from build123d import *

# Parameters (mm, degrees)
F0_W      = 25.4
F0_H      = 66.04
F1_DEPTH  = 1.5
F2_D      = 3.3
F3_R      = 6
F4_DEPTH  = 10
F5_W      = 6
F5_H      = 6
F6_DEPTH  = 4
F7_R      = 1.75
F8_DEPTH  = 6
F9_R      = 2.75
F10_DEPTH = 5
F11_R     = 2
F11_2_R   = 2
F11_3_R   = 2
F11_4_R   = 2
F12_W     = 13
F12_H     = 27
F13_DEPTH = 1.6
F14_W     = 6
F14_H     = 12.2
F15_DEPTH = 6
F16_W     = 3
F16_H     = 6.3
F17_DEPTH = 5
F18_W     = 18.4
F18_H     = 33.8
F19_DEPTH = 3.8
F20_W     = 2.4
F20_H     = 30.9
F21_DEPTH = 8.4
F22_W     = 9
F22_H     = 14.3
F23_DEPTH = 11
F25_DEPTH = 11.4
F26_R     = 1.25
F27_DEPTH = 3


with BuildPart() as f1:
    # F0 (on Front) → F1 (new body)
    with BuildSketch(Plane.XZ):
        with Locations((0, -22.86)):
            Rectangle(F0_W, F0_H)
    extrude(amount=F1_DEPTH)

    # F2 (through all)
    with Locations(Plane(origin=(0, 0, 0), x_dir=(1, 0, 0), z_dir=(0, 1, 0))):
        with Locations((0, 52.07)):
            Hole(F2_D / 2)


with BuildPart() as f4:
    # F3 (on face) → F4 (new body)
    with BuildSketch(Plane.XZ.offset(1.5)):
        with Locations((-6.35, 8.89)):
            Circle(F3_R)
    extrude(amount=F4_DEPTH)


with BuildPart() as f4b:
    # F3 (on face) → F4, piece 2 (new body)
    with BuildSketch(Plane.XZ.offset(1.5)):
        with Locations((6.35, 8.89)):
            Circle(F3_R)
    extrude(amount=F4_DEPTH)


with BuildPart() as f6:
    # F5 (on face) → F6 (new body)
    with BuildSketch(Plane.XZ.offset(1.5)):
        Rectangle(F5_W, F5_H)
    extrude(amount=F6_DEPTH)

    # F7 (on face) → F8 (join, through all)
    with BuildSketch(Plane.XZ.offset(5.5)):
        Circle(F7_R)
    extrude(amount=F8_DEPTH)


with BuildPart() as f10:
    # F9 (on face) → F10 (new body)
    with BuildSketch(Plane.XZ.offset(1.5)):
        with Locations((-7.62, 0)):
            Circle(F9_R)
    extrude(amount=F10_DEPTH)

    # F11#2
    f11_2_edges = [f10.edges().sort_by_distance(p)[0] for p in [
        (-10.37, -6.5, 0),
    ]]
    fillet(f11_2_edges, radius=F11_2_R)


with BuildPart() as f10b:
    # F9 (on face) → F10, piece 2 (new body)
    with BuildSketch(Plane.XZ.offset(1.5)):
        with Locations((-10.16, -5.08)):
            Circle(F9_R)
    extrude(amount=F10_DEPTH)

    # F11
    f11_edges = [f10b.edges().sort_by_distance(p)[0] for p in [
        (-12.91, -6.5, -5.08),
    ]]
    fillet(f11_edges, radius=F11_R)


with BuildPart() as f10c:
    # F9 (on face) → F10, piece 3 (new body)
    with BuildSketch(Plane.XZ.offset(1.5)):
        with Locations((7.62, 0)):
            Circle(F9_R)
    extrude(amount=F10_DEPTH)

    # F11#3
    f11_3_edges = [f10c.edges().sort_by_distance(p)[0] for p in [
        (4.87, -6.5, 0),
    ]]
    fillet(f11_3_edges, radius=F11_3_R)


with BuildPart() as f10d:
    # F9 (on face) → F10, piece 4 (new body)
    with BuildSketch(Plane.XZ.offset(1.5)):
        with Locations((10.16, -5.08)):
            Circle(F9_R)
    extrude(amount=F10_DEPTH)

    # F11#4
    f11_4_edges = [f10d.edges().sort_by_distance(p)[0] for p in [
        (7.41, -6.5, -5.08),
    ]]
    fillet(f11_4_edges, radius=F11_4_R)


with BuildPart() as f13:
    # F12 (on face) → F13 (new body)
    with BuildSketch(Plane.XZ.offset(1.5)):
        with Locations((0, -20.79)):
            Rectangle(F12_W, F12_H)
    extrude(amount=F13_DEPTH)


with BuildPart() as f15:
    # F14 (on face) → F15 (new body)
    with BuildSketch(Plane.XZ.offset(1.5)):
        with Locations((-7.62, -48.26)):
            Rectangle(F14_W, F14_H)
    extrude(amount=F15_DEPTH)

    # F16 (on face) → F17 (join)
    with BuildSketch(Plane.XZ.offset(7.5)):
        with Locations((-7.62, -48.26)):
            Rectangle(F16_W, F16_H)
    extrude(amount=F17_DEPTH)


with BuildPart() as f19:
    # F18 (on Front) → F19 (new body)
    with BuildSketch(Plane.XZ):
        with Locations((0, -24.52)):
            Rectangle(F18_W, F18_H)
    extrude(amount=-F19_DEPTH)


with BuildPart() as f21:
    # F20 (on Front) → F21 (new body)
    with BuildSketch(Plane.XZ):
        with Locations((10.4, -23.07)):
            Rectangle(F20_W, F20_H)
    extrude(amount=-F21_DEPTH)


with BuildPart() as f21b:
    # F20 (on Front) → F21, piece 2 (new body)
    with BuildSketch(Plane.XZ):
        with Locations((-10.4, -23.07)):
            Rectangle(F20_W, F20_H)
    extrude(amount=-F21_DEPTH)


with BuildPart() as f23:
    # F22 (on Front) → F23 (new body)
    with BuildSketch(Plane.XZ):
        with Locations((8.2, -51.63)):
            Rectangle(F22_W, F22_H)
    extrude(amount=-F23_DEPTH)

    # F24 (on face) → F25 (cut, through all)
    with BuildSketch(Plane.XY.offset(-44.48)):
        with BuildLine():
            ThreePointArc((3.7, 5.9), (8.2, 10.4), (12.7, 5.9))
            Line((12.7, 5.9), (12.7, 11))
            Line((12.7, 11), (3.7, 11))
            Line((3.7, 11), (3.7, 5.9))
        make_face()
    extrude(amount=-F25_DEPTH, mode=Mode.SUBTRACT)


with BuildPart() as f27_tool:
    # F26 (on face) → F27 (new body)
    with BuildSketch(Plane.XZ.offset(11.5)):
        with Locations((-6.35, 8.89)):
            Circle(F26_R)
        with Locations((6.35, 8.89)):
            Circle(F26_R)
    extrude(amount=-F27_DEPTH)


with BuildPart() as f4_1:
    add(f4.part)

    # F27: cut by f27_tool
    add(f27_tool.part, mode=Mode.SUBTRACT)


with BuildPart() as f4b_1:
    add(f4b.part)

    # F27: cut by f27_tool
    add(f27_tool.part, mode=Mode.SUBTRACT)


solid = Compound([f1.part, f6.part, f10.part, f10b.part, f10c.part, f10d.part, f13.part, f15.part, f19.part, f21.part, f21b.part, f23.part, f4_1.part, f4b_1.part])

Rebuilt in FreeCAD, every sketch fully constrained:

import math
import FreeCAD as App
import Part
import Sketcher

V = App.Vector
Q = App.Units.Quantity


def edges_at(feature, points):
    """Names of the edges that pass closest to the given points."""
    edges = feature.Shape.Edges
    near = lambda p: min(range(len(edges)), key=lambda i: edges[i].distToShape(Part.Vertex(*p))[0])
    return sorted({f"Edge{near(p) + 1}" for p in points})


def add_polygon(sketch, points):
    """Adds a closed chain of lines whose ends are joined by coincident constraints."""
    first, n = sketch.GeometryCount, len(points)
    for a, b in zip(points, points[1:] + points[:1]):
        sketch.addGeometry(Part.LineSegment(App.Vector(*a, 0), App.Vector(*b, 0)), False)
    for i in range(n):
        sketch.addConstraint(Sketcher.Constraint("Coincident", first + i, 2, first + (i + 1) % n, 1))

doc = App.newDocument("Part")
body = doc.addObject("PartDesign::Body", "Body")

# Sketch on XZ plane
sketch1 = body.newObject("Sketcher::SketchObject", "Sketch")
sketch1.AttachmentSupport = (doc.getObject("XZ_Plane"), [""])
sketch1.MapMode = "FlatFace"
add_polygon(sketch1, [(-13, 10), (-13, -56), (13, -56), (13, 10)])  # lines 0-3
sketch1.addConstraint([
    Sketcher.Constraint("Vertical", 0),
    Sketcher.Constraint("Horizontal", 1),
    Sketcher.Constraint("Vertical", 2),
    Sketcher.Constraint("Horizontal", 3),
    Sketcher.Constraint("DistanceX", 1, 1, 1, 2, Q("25.4 mm")),
    Sketcher.Constraint("DistanceY", 0, 2, 0, 1, Q("66.04 mm")),
    Sketcher.Constraint("DistanceX", 0, 2, -1, 1, Q("12.7 mm")),
    Sketcher.Constraint("DistanceY", 0, 2, -1, 1, Q("55.88 mm")),
])
pad1 = body.newObject("PartDesign::Pad", "Pad")
pad1.Profile = sketch1
pad1.Length = 1.5

# Sketch on XZ plane
sketch2 = body.newObject("Sketcher::SketchObject", "Sketch001")
sketch2.AttachmentSupport = (doc.getObject("XZ_Plane"), [""])
sketch2.MapMode = "FlatFace"
sketch2.addGeometry(Part.Circle(V(0, -52.1, 0), V(0, 0, 1), 1.6), False)
sketch2.addConstraint([
    Sketcher.Constraint("PointOnObject", 0, 3, -2),
    Sketcher.Constraint("Diameter", 0, Q("3.3 mm")),
    Sketcher.Constraint("DistanceY", 0, 3, -1, 1, Q("52.07 mm")),
])
doc.recompute()
hole = body.newObject("PartDesign::Hole", "Hole")
hole.Profile = sketch2
hole.ThreadType = "None"
hole.Diameter = 3.3
hole.DepthType = "ThroughAll"
hole.Reversed = True
body2 = doc.addObject("PartDesign::Body", "Body001")

# Sketch on XZ plane
sketch3 = body2.newObject("Sketcher::SketchObject", "Sketch002")
sketch3.AttachmentSupport = (doc.getObject("XZ_Plane001"), [""])
sketch3.MapMode = "FlatFace"
sketch3.AttachmentOffset = App.Placement(V(0, 0, 1.5), App.Rotation())
sketch3.addGeometry(Part.Circle(V(-6, 9, 0), V(0, 0, 1), 6), False)
sketch3.addConstraint([
    Sketcher.Constraint("Diameter", 0, Q("12 mm")),
    Sketcher.Constraint("DistanceX", 0, 3, -1, 1, Q("6.35 mm")),
    Sketcher.Constraint("DistanceY", -1, 1, 0, 3, Q("8.89 mm")),
])
pad2 = body2.newObject("PartDesign::Pad", "Pad001")
pad2.Profile = sketch3
pad2.Length = 10
body3 = doc.addObject("PartDesign::Body", "Body002")

# Sketch on XZ plane
sketch4 = body3.newObject("Sketcher::SketchObject", "Sketch003")
sketch4.AttachmentSupport = (doc.getObject("XZ_Plane002"), [""])
sketch4.MapMode = "FlatFace"
sketch4.AttachmentOffset = App.Placement(V(0, 0, 1.5), App.Rotation())
sketch4.addGeometry(Part.Circle(V(6, 9, 0), V(0, 0, 1), 6), False)
sketch4.addConstraint([
    Sketcher.Constraint("Diameter", 0, Q("12 mm")),
    Sketcher.Constraint("DistanceX", -1, 1, 0, 3, Q("6.35 mm")),
    Sketcher.Constraint("DistanceY", -1, 1, 0, 3, Q("8.89 mm")),
])
pad3 = body3.newObject("PartDesign::Pad", "Pad002")
pad3.Profile = sketch4
pad3.Length = 10
body4 = doc.addObject("PartDesign::Body", "Body003")

# Sketch on XZ plane
sketch5 = body4.newObject("Sketcher::SketchObject", "Sketch004")
sketch5.AttachmentSupport = (doc.getObject("XZ_Plane003"), [""])
sketch5.MapMode = "FlatFace"
sketch5.AttachmentOffset = App.Placement(V(0, 0, 1.5), App.Rotation())
add_polygon(sketch5, [(-3, 3), (-3, -3), (3, -3), (3, 3)])  # lines 0-3
sketch5.addConstraint([
    Sketcher.Constraint("Vertical", 0),
    Sketcher.Constraint("Horizontal", 1),
    Sketcher.Constraint("Vertical", 2),
    Sketcher.Constraint("Horizontal", 3),
    Sketcher.Constraint("Symmetric", 0, 2, 2, 2, -1, 1),
    Sketcher.Constraint("Equal", 3, 0),
    Sketcher.Constraint("DistanceX", 1, 1, 1, 2, Q("6 mm")),
])
pad4 = body4.newObject("PartDesign::Pad", "Pad003")
pad4.Profile = sketch5
pad4.Length = 4

# Sketch on XZ plane
sketch6 = body4.newObject("Sketcher::SketchObject", "Sketch005")
sketch6.AttachmentSupport = (doc.getObject("XZ_Plane003"), [""])
sketch6.MapMode = "FlatFace"
sketch6.AttachmentOffset = App.Placement(V(0, 0, 5.5), App.Rotation())
sketch6.addGeometry(Part.Circle(V(0, 0, 0), V(0, 0, 1), 1.8), False)
sketch6.addConstraint([
    Sketcher.Constraint("Coincident", 0, 3, -1, 1),
    Sketcher.Constraint("Diameter", 0, Q("3.5 mm")),
])
pad5 = body4.newObject("PartDesign::Pad", "Pad004")
pad5.Profile = sketch6
pad5.Length = 6
body5 = doc.addObject("PartDesign::Body", "Body004")

# Sketch on XZ plane
sketch7 = body5.newObject("Sketcher::SketchObject", "Sketch006")
sketch7.AttachmentSupport = (doc.getObject("XZ_Plane004"), [""])
sketch7.MapMode = "FlatFace"
sketch7.AttachmentOffset = App.Placement(V(0, 0, 1.5), App.Rotation())
sketch7.addGeometry(Part.Circle(V(-7.6, 0, 0), V(0, 0, 1), 2.8), False)
sketch7.addConstraint([
    Sketcher.Constraint("PointOnObject", 0, 3, -1),
    Sketcher.Constraint("Diameter", 0, Q("5.5 mm")),
    Sketcher.Constraint("DistanceX", 0, 3, -1, 1, Q("7.62 mm")),
])
pad6 = body5.newObject("PartDesign::Pad", "Pad005")
pad6.Profile = sketch7
pad6.Length = 5
doc.recompute()

fillet = body5.newObject("PartDesign::Fillet", "Fillet")
fillet.Base = (pad6, edges_at(pad6, [(-10.37, -6.5, 0)]))
fillet.Radius = 2
body6 = doc.addObject("PartDesign::Body", "Body005")

# Sketch on XZ plane
sketch8 = body6.newObject("Sketcher::SketchObject", "Sketch007")
sketch8.AttachmentSupport = (doc.getObject("XZ_Plane005"), [""])
sketch8.MapMode = "FlatFace"
sketch8.AttachmentOffset = App.Placement(V(0, 0, 1.5), App.Rotation())
sketch8.addGeometry(Part.Circle(V(-10.2, -5.1, 0), V(0, 0, 1), 2.8), False)
sketch8.addConstraint([
    Sketcher.Constraint("Diameter", 0, Q("5.5 mm")),
    Sketcher.Constraint("DistanceX", 0, 3, -1, 1, Q("10.16 mm")),
    Sketcher.Constraint("DistanceY", 0, 3, -1, 1, Q("5.08 mm")),
])
pad7 = body6.newObject("PartDesign::Pad", "Pad006")
pad7.Profile = sketch8
pad7.Length = 5
doc.recompute()

fillet2 = body6.newObject("PartDesign::Fillet", "Fillet001")
fillet2.Base = (pad7, edges_at(pad7, [(-12.91, -6.5, -5.08)]))
fillet2.Radius = 2
body7 = doc.addObject("PartDesign::Body", "Body006")

# Sketch on XZ plane
sketch9 = body7.newObject("Sketcher::SketchObject", "Sketch008")
sketch9.AttachmentSupport = (doc.getObject("XZ_Plane006"), [""])
sketch9.MapMode = "FlatFace"
sketch9.AttachmentOffset = App.Placement(V(0, 0, 1.5), App.Rotation())
sketch9.addGeometry(Part.Circle(V(7.6, 0, 0), V(0, 0, 1), 2.8), False)
sketch9.addConstraint([
    Sketcher.Constraint("PointOnObject", 0, 3, -1),
    Sketcher.Constraint("Diameter", 0, Q("5.5 mm")),
    Sketcher.Constraint("DistanceX", -1, 1, 0, 3, Q("7.62 mm")),
])
pad8 = body7.newObject("PartDesign::Pad", "Pad007")
pad8.Profile = sketch9
pad8.Length = 5
doc.recompute()

fillet3 = body7.newObject("PartDesign::Fillet", "Fillet002")
fillet3.Base = (pad8, edges_at(pad8, [(4.87, -6.5, 0)]))
fillet3.Radius = 2
body8 = doc.addObject("PartDesign::Body", "Body007")

# Sketch on XZ plane
sketch10 = body8.newObject("Sketcher::SketchObject", "Sketch009")
sketch10.AttachmentSupport = (doc.getObject("XZ_Plane007"), [""])
sketch10.MapMode = "FlatFace"
sketch10.AttachmentOffset = App.Placement(V(0, 0, 1.5), App.Rotation())
sketch10.addGeometry(Part.Circle(V(10.2, -5.1, 0), V(0, 0, 1), 2.8), False)
sketch10.addConstraint([
    Sketcher.Constraint("Diameter", 0, Q("5.5 mm")),
    Sketcher.Constraint("DistanceX", -1, 1, 0, 3, Q("10.16 mm")),
    Sketcher.Constraint("DistanceY", 0, 3, -1, 1, Q("5.08 mm")),
])
pad9 = body8.newObject("PartDesign::Pad", "Pad008")
pad9.Profile = sketch10
pad9.Length = 5
doc.recompute()

fillet4 = body8.newObject("PartDesign::Fillet", "Fillet003")
fillet4.Base = (pad9, edges_at(pad9, [(7.41, -6.5, -5.08)]))
fillet4.Radius = 2
body9 = doc.addObject("PartDesign::Body", "Body008")

# Sketch on XZ plane
sketch11 = body9.newObject("Sketcher::SketchObject", "Sketch010")
sketch11.AttachmentSupport = (doc.getObject("XZ_Plane008"), [""])
sketch11.MapMode = "FlatFace"
sketch11.AttachmentOffset = App.Placement(V(0, 0, 1.5), App.Rotation())
add_polygon(sketch11, [(-6, -7), (-6, -34), (6, -34), (6, -7)])  # lines 0-3
sketch11.addConstraint([
    Sketcher.Constraint("Vertical", 0),
    Sketcher.Constraint("Horizontal", 1),
    Sketcher.Constraint("Vertical", 2),
    Sketcher.Constraint("Horizontal", 3),
    Sketcher.Constraint("DistanceX", 1, 1, 1, 2, Q("13 mm")),
    Sketcher.Constraint("DistanceY", 0, 2, 0, 1, Q("27 mm")),
    Sketcher.Constraint("DistanceX", 0, 2, -1, 1, Q("6.5 mm")),
    Sketcher.Constraint("DistanceY", 0, 2, -1, 1, Q("34.29 mm")),
])
pad10 = body9.newObject("PartDesign::Pad", "Pad009")
pad10.Profile = sketch11
pad10.Length = 1.6
body10 = doc.addObject("PartDesign::Body", "Body009")

# Sketch on XZ plane
sketch12 = body10.newObject("Sketcher::SketchObject", "Sketch011")
sketch12.AttachmentSupport = (doc.getObject("XZ_Plane009"), [""])
sketch12.MapMode = "FlatFace"
sketch12.AttachmentOffset = App.Placement(V(0, 0, 1.5), App.Rotation())
add_polygon(sketch12, [(-11, -42), (-11, -54), (-5, -54), (-5, -42)])  # lines 0-3
sketch12.addConstraint([
    Sketcher.Constraint("Vertical", 0),
    Sketcher.Constraint("Horizontal", 1),
    Sketcher.Constraint("Vertical", 2),
    Sketcher.Constraint("Horizontal", 3),
    Sketcher.Constraint("DistanceX", 1, 1, 1, 2, Q("6 mm")),
    Sketcher.Constraint("DistanceY", 0, 2, 0, 1, Q("12.2 mm")),
    Sketcher.Constraint("DistanceX", 0, 2, -1, 1, Q("10.62 mm")),
    Sketcher.Constraint("DistanceY", 0, 2, -1, 1, Q("54.36 mm")),
])
pad11 = body10.newObject("PartDesign::Pad", "Pad010")
pad11.Profile = sketch12
pad11.Length = 6

# Sketch on XZ plane
sketch13 = body10.newObject("Sketcher::SketchObject", "Sketch012")
sketch13.AttachmentSupport = (doc.getObject("XZ_Plane009"), [""])
sketch13.MapMode = "FlatFace"
sketch13.AttachmentOffset = App.Placement(V(0, 0, 7.5), App.Rotation())
add_polygon(sketch13, [(-9.1, -45.1), (-9.1, -51.4), (-6.1, -51.4), (-6.1, -45.1)])  # lines 0-3
sketch13.addConstraint([
    Sketcher.Constraint("Vertical", 0),
    Sketcher.Constraint("Horizontal", 1),
    Sketcher.Constraint("Vertical", 2),
    Sketcher.Constraint("Horizontal", 3),
    Sketcher.Constraint("DistanceX", 1, 1, 1, 2, Q("3 mm")),
    Sketcher.Constraint("DistanceY", 0, 2, 0, 1, Q("6.3 mm")),
    Sketcher.Constraint("DistanceX", 0, 2, -1, 1, Q("9.12 mm")),
    Sketcher.Constraint("DistanceY", 0, 2, -1, 1, Q("51.41 mm")),
])
pad12 = body10.newObject("PartDesign::Pad", "Pad011")
pad12.Profile = sketch13
pad12.Length = 5
body11 = doc.addObject("PartDesign::Body", "Body010")

# Sketch on XZ plane
sketch14 = body11.newObject("Sketcher::SketchObject", "Sketch013")
sketch14.AttachmentSupport = (doc.getObject("XZ_Plane010"), [""])
sketch14.MapMode = "FlatFace"
add_polygon(sketch14, [(-9, -8), (-9, -41), (9, -41), (9, -8)])  # lines 0-3
sketch14.addConstraint([
    Sketcher.Constraint("Vertical", 0),
    Sketcher.Constraint("Horizontal", 1),
    Sketcher.Constraint("Vertical", 2),
    Sketcher.Constraint("Horizontal", 3),
    Sketcher.Constraint("DistanceX", 1, 1, 1, 2, Q("18.4 mm")),
    Sketcher.Constraint("DistanceY", 0, 2, 0, 1, Q("33.8 mm")),
    Sketcher.Constraint("DistanceX", 0, 2, -1, 1, Q("9.2 mm")),
    Sketcher.Constraint("DistanceY", 0, 2, -1, 1, Q("41.42 mm")),
])
pad13 = body11.newObject("PartDesign::Pad", "Pad012")
pad13.Profile = sketch14
pad13.Length = 3.8
pad13.Reversed = True
body12 = doc.addObject("PartDesign::Body", "Body011")

# Sketch on XZ plane
sketch15 = body12.newObject("Sketcher::SketchObject", "Sketch014")
sketch15.AttachmentSupport = (doc.getObject("XZ_Plane011"), [""])
sketch15.MapMode = "FlatFace"
add_polygon(sketch15, [(9.2, -7.6), (9.2, -38.5), (11.6, -38.5), (11.6, -7.6)])  # lines 0-3
sketch15.addConstraint([
    Sketcher.Constraint("Vertical", 0),
    Sketcher.Constraint("Horizontal", 1),
    Sketcher.Constraint("Vertical", 2),
    Sketcher.Constraint("Horizontal", 3),
    Sketcher.Constraint("DistanceX", 1, 1, 1, 2, Q("2.4 mm")),
    Sketcher.Constraint("DistanceY", 0, 2, 0, 1, Q("30.9 mm")),
    Sketcher.Constraint("DistanceX", -1, 1, 0, 2, Q("9.2 mm")),
    Sketcher.Constraint("DistanceY", 0, 2, -1, 1, Q("38.52 mm")),
])
pad14 = body12.newObject("PartDesign::Pad", "Pad013")
pad14.Profile = sketch15
pad14.Length = 8.4
pad14.Reversed = True
body13 = doc.addObject("PartDesign::Body", "Body012")

# Sketch on XZ plane
sketch16 = body13.newObject("Sketcher::SketchObject", "Sketch015")
sketch16.AttachmentSupport = (doc.getObject("XZ_Plane012"), [""])
sketch16.MapMode = "FlatFace"
add_polygon(sketch16, [(-11.6, -7.6), (-11.6, -38.5), (-9.2, -38.5), (-9.2, -7.6)])  # lines 0-3
sketch16.addConstraint([
    Sketcher.Constraint("Vertical", 0),
    Sketcher.Constraint("Horizontal", 1),
    Sketcher.Constraint("Vertical", 2),
    Sketcher.Constraint("Horizontal", 3),
    Sketcher.Constraint("DistanceX", 1, 1, 1, 2, Q("2.4 mm")),
    Sketcher.Constraint("DistanceY", 0, 2, 0, 1, Q("30.9 mm")),
    Sketcher.Constraint("DistanceX", 0, 2, -1, 1, Q("11.6 mm")),
    Sketcher.Constraint("DistanceY", 0, 2, -1, 1, Q("38.52 mm")),
])
pad15 = body13.newObject("PartDesign::Pad", "Pad014")
pad15.Profile = sketch16
pad15.Length = 8.4
pad15.Reversed = True
body14 = doc.addObject("PartDesign::Body", "Body013")

# Sketch on XZ plane
sketch17 = body14.newObject("Sketcher::SketchObject", "Sketch016")
sketch17.AttachmentSupport = (doc.getObject("XZ_Plane013"), [""])
sketch17.MapMode = "FlatFace"
add_polygon(sketch17, [(4, -44), (4, -59), (13, -59), (13, -44)])  # lines 0-3
sketch17.addConstraint([
    Sketcher.Constraint("Vertical", 0),
    Sketcher.Constraint("Horizontal", 1),
    Sketcher.Constraint("Vertical", 2),
    Sketcher.Constraint("Horizontal", 3),
    Sketcher.Constraint("DistanceX", 1, 1, 1, 2, Q("9 mm")),
    Sketcher.Constraint("DistanceY", 0, 2, 0, 1, Q("14.3 mm")),
    Sketcher.Constraint("DistanceX", -1, 1, 0, 2, Q("3.7 mm")),
    Sketcher.Constraint("DistanceY", 0, 2, -1, 1, Q("58.78 mm")),
])
pad16 = body14.newObject("PartDesign::Pad", "Pad015")
pad16.Profile = sketch17
pad16.Length = 11
pad16.Reversed = True

# Sketch on XY plane
sketch18 = body14.newObject("Sketcher::SketchObject", "Sketch017")
sketch18.AttachmentSupport = (doc.getObject("XY_Plane013"), [""])
sketch18.MapMode = "FlatFace"
sketch18.AttachmentOffset = App.Placement(V(0, 0, -44.48), App.Rotation())
sketch18.addGeometry([
    Part.ArcOfCircle(Part.Circle(V(8.2, 5.9, 0), V(0, 0, 1), 4.5), math.radians(0), math.radians(180)),
    Part.LineSegment(V(12.7, 5.9, 0), V(12.7, 11, 0)),
    Part.LineSegment(V(12.7, 11, 0), V(3.7, 11, 0)),
    Part.LineSegment(V(3.7, 11, 0), V(3.7, 5.9, 0)),
], False)
sketch18.addConstraint([
    Sketcher.Constraint("Tangent", 0, 1, 1, 1),
    Sketcher.Constraint("Coincident", 1, 2, 2, 1),
    Sketcher.Constraint("Coincident", 2, 2, 3, 1),
    Sketcher.Constraint("Tangent", 3, 2, 0, 2),
    Sketcher.Constraint("Vertical", 1),
    Sketcher.Constraint("Horizontal", 2),
    Sketcher.Constraint("Vertical", 3),
    Sketcher.Constraint("Radius", 0, Q("4.5 mm")),
    Sketcher.Constraint("DistanceY", 1, 1, 1, 2, Q("5.1 mm")),
    Sketcher.Constraint("DistanceY", -1, 1, 1, 2, Q("11 mm")),
    Sketcher.Constraint("DistanceX", -1, 1, 0, 3, Q("8.2 mm")),
])
pocket1 = body14.newObject("PartDesign::Pocket", "Pocket")
pocket1.Profile = sketch18
pocket1.Length = 11.4
body15 = doc.addObject("PartDesign::Body", "Body014")
body15.AllowCompound = True

# Sketch on XZ plane
sketch19 = body15.newObject("Sketcher::SketchObject", "Sketch018")
sketch19.AttachmentSupport = (doc.getObject("XZ_Plane014"), [""])
sketch19.MapMode = "FlatFace"
sketch19.AttachmentOffset = App.Placement(V(0, 0, 11.5), App.Rotation())
sketch19.addGeometry([
    Part.Circle(V(-6.3, 8.9, 0), V(0, 0, 1), 1.2),
    Part.Circle(V(6.3, 8.9, 0), V(0, 0, 1), 1.2),
], False)
sketch19.addConstraint([
    Sketcher.Constraint("Equal", 0, 1),
    Sketcher.Constraint("Symmetric", 0, 3, 1, 3, -2),
    Sketcher.Constraint("Diameter", 0, Q("2.5 mm")),
    Sketcher.Constraint("DistanceX", 0, 3, 1, 3, Q("12.7 mm")),
    Sketcher.Constraint("DistanceY", -1, 1, 0, 3, Q("8.89 mm")),
])
pad17 = body15.newObject("PartDesign::Pad", "Pad016")
pad17.Profile = sketch19
pad17.Length = 3
pad17.Reversed = True
doc.recompute()

body16 = doc.addObject("PartDesign::Body", "Body015")
body16.BaseFeature = body15
boolean = body2.newObject("PartDesign::Boolean", "Boolean")
boolean.Type = "Cut"
boolean.addObjects([body16])
doc.recompute()

boolean2 = body3.newObject("PartDesign::Boolean", "Boolean001")
boolean2.Type = "Cut"
boolean2.addObjects([body15])

doc.recompute()
